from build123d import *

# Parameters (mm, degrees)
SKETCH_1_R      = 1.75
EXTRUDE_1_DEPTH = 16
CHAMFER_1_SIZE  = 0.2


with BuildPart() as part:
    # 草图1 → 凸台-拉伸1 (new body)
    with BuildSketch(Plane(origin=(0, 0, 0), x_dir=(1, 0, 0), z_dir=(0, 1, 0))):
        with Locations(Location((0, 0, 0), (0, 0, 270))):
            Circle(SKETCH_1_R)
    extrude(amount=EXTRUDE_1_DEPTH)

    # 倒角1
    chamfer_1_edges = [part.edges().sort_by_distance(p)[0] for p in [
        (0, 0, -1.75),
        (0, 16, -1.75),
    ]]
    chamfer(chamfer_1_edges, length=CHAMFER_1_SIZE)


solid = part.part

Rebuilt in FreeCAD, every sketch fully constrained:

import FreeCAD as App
import Part
import Sketcher
Q = App.Units.Quantity


def edges_at(feature, points):
    """Names of the edges that pass closest to the given points."""
    edges = feature.Shape.Edges
    near = lambda p: min(range(len(edges)), key=lambda i: edges[i].distToShape(Part.Vertex(*p))[0])
    return sorted({f"Edge{near(p) + 1}" for p in points})

doc = App.newDocument("Part")
body = doc.addObject("PartDesign::Body", "Body")

# Sketch on XZ plane
sketch1 = body.newObject("Sketcher::SketchObject", "Sketch")
sketch1.AttachmentSupport = (doc.getObject("XZ_Plane"), [""])
sketch1.MapMode = "FlatFace"
sketch1.addGeometry(Part.Circle(App.Vector(0, 0, 0), App.Vector(0, 0, 1), 1.8), False)
sketch1.addConstraint([
    Sketcher.Constraint("Coincident", 0, 3, -1, 1),
    Sketcher.Constraint("Diameter", 0, Q("3.5 mm")),
])
pad1 = body.newObject("PartDesign::Pad", "Pad")
pad1.Profile = sketch1
pad1.Length = 16
pad1.Reversed = True
doc.recompute()

chamfer = body.newObject("PartDesign::Chamfer", "Chamfer")
chamfer.Base = (pad1, edges_at(pad1, [(0, 0, -1.75), (0, 16, -1.75)]))
chamfer.Size = 0.2

doc.recompute()
